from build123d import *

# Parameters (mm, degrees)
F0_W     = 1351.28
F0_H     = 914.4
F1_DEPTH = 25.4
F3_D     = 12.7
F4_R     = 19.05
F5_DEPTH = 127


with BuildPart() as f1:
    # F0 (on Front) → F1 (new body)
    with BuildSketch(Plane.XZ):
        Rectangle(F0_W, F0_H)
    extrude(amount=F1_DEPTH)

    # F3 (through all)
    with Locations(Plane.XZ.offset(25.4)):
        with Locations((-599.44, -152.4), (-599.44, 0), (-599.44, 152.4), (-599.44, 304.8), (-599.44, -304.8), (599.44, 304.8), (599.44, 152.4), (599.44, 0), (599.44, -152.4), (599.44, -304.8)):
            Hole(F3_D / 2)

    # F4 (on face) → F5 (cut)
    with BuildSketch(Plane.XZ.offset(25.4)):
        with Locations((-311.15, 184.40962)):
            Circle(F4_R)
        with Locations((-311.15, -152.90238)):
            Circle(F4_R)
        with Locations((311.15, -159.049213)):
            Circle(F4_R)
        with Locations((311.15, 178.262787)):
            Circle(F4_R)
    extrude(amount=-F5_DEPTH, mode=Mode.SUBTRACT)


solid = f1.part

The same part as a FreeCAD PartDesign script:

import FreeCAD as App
import Part
import Sketcher
from FreeCAD import Vector
Q = App.Units.Quantity


def add_polygon(sketch, points):
    """Adds a closed chain of lines whose ends are joined by coincident constraints."""
    first, n = sketch.GeometryCount, len(points)
    for a, b in zip(points, points[1:] + points[:1]):
        sketch.addGeometry(Part.LineSegment(App.Vector(*a, 0), App.Vector(*b, 0)), False)
    for i in range(n):
        sketch.addConstraint(Sketcher.Constraint("Coincident", first + i, 2, first + (i + 1) % n, 1))

doc = App.newDocument("Part")
params = doc.addObject("Spreadsheet::Sheet", "Params")
for row, (alias, value) in enumerate([
    ("sketch1_height", "36 in"),
    ("sketch1_width", "53.2 in"),
    ("pad1_length", "1 in"),
    ("sketch2_diameter", "0.5 in"),
    ("hole_diameter", "0.5 in"),
    ("sketch3_diameter", "1.5 in"),
    ("pocket1_length", "5 in"),
], start=1):
    params.set(f"A{row}", alias)
    params.set(f"B{row}", "=" + value)
    params.setAlias(f"B{row}", alias)

body = doc.addObject("PartDesign::Body", "Body")

sketch1 = body.newObject("Sketcher::SketchObject", "Sketch")
sketch1.AttachmentSupport = (doc.getObject("XZ_Plane"), [""])
sketch1.MapMode = "FlatFace"
add_polygon(sketch1, [(-676, 457), (-676, -457), (676, -457), (676, 457)])
sketch1.addConstraint([
    Sketcher.Constraint("Vertical", 0),
    Sketcher.Constraint("Horizontal", 1),
    Sketcher.Constraint("Vertical", 2),
    Sketcher.Constraint("Horizontal", 3),
    Sketcher.Constraint("Symmetric", 0, 2, 2, 2, -1, 1),
    Sketcher.Constraint("DistanceY", 0, 2, 0, 1, Q("36 in")),
    Sketcher.Constraint("DistanceX", 1, 1, 1, 2, Q("53.2 in")),
])
sketch1.setExpression("Constraints[9]", "Params.sketch1_height")
sketch1.setExpression("Constraints[10]", "Params.sketch1_width")
pad1 = body.newObject("PartDesign::Pad", "Pad")
pad1.Profile = sketch1
pad1.setExpression("Length", "Params.pad1_length")

sketch2 = body.newObject("Sketcher::SketchObject", "Sketch001")
sketch2.AttachmentSupport = (doc.getObject("XZ_Plane"), [""])
sketch2.MapMode = "FlatFace"
sketch2.AttachmentOffset = App.Placement(Vector(0, 0, 1 * 25.4), App.Rotation())
sketch2.addGeometry([
    Part.Circle(Vector(-599, -152, 0), Vector(0, 0, 1), 6),
    Part.Circle(Vector(-599, 0, 0), Vector(0, 0, 1), 6),
    Part.Circle(Vector(-599, 152, 0), Vector(0, 0, 1), 6),
    Part.Circle(Vector(-599, 305, 0), Vector(0, 0, 1), 6),
    Part.Circle(Vector(-599, -305, 0), Vector(0, 0, 1), 6),
    Part.Circle(Vector(599, 305, 0), Vector(0, 0, 1), 6),
    Part.Circle(Vector(599, 152, 0), Vector(0, 0, 1), 6),
    Part.Circle(Vector(599, 0, 0), Vector(0, 0, 1), 6),
    Part.Circle(Vector(599, -152, 0), Vector(0, 0, 1), 6),
    Part.Circle(Vector(599, -305, 0), Vector(0, 0, 1), 6),
], False)
sketch2.addConstraint([
    Sketcher.Constraint("Equal", 0, 1),
    Sketcher.Constraint("Equal", 1, 2),
    Sketcher.Constraint("Equal", 2, 3),
    Sketcher.Constraint("Equal", 3, 4),
    Sketcher.Constraint("Equal", 4, 5),
    Sketcher.Constraint("Equal", 5, 6),
    Sketcher.Constraint("Equal", 6, 7),
    Sketcher.Constraint("Equal", 7, 8),
    Sketcher.Constraint("Equal", 8, 9),
    Sketcher.Constraint("Symmetric", 4, 3, 5, 3, -1, 1),
    Sketcher.Constraint("Symmetric", 0, 3, 6, 3, -1, 1),
    Sketcher.Constraint("Symmetric", 1, 3, 7, 3, -1, 1),
    Sketcher.Constraint("Symmetric", 2, 3, 8, 3, -1, 1),
    Sketcher.Constraint("Symmetric", 3, 3, 9, 3, -1, 1),
    Sketcher.Constraint("Symmetric", 3, 3, 5, 3, -2),
    Sketcher.Constraint("Symmetric", 2, 3, 6, 3, -2),
    Sketcher.Constraint("PointOnObject", 1, 3, -1),
    Sketcher.Constraint("Vertical", 0, 3, 1, 3),
    Sketcher.Constraint("Vertical", 2, 3, 3, 3),
    Sketcher.Constraint("Diameter", 0, Q("0.5 in")),
    Sketcher.Constraint("DistanceY", 0, 3, -1, 1, Q("6 in")),
    Sketcher.Constraint("DistanceY", -1, 1, 3, 3, Q("12 in")),
    Sketcher.Constraint("DistanceX", 0, 3, -1, 1, Q("23.6 in")),
])
sketch2.setExpression("Constraints[19]", "Params.sketch2_diameter")
doc.recompute()
hole = body.newObject("PartDesign::Hole", "Hole")
hole.Profile = sketch2
hole.ThreadType = "None"
hole.setExpression("Diameter", "Params.hole_diameter")
hole.DepthType = "ThroughAll"

sketch3 = body.newObject("Sketcher::SketchObject", "Sketch002")
sketch3.AttachmentSupport = (doc.getObject("XZ_Plane"), [""])
sketch3.MapMode = "FlatFace"
sketch3.AttachmentOffset = App.Placement(Vector(0, 0, 1 * 25.4), App.Rotation())
sketch3.addGeometry([
    Part.Circle(Vector(-311, 184, 0), Vector(0, 0, 1), 19),
    Part.Circle(Vector(-311, -153, 0), Vector(0, 0, 1), 19),
    Part.Circle(Vector(311, -159, 0), Vector(0, 0, 1), 19),
    Part.Circle(Vector(311, 178, 0), Vector(0, 0, 1), 19),
], False)
sketch3.addConstraint([
    Sketcher.Constraint("Equal", 0, 1),
    Sketcher.Constraint("Equal", 1, 2),
    Sketcher.Constraint("Equal", 2, 3),
    Sketcher.Constraint("Vertical", 0, 3, 1, 3),
    Sketcher.Constraint("Vertical", 2, 3, 3, 3),
    Sketcher.Constraint("Diameter", 0, Q("1.5 in")),
    Sketcher.Constraint("DistanceX", 1, 3, 2, 3, Q("24.5 in")),
    Sketcher.Constraint("DistanceX", 0, 3, -1, 1, Q("12.25 in")),
    Sketcher.Constraint("DistanceY", 1, 3, 0, 3, Q("13.28 in")),
    Sketcher.Constraint("DistanceY", 2, 3, 3, 3, Q("13.28 in")),
    Sketcher.Constraint("DistanceY", -1, 1, 0, 3, 184.40962),
    Sketcher.Constraint("DistanceY", 2, 3, -1, 1, 159.049213),
])
sketch3.setExpression("Constraints[5]", "Params.sketch3_diameter")
pocket1 = body.newObject("PartDesign::Pocket", "Pocket")
pocket1.Profile = sketch3
pocket1.setExpression("Length", "Params.pocket1_length")

doc.recompute()
